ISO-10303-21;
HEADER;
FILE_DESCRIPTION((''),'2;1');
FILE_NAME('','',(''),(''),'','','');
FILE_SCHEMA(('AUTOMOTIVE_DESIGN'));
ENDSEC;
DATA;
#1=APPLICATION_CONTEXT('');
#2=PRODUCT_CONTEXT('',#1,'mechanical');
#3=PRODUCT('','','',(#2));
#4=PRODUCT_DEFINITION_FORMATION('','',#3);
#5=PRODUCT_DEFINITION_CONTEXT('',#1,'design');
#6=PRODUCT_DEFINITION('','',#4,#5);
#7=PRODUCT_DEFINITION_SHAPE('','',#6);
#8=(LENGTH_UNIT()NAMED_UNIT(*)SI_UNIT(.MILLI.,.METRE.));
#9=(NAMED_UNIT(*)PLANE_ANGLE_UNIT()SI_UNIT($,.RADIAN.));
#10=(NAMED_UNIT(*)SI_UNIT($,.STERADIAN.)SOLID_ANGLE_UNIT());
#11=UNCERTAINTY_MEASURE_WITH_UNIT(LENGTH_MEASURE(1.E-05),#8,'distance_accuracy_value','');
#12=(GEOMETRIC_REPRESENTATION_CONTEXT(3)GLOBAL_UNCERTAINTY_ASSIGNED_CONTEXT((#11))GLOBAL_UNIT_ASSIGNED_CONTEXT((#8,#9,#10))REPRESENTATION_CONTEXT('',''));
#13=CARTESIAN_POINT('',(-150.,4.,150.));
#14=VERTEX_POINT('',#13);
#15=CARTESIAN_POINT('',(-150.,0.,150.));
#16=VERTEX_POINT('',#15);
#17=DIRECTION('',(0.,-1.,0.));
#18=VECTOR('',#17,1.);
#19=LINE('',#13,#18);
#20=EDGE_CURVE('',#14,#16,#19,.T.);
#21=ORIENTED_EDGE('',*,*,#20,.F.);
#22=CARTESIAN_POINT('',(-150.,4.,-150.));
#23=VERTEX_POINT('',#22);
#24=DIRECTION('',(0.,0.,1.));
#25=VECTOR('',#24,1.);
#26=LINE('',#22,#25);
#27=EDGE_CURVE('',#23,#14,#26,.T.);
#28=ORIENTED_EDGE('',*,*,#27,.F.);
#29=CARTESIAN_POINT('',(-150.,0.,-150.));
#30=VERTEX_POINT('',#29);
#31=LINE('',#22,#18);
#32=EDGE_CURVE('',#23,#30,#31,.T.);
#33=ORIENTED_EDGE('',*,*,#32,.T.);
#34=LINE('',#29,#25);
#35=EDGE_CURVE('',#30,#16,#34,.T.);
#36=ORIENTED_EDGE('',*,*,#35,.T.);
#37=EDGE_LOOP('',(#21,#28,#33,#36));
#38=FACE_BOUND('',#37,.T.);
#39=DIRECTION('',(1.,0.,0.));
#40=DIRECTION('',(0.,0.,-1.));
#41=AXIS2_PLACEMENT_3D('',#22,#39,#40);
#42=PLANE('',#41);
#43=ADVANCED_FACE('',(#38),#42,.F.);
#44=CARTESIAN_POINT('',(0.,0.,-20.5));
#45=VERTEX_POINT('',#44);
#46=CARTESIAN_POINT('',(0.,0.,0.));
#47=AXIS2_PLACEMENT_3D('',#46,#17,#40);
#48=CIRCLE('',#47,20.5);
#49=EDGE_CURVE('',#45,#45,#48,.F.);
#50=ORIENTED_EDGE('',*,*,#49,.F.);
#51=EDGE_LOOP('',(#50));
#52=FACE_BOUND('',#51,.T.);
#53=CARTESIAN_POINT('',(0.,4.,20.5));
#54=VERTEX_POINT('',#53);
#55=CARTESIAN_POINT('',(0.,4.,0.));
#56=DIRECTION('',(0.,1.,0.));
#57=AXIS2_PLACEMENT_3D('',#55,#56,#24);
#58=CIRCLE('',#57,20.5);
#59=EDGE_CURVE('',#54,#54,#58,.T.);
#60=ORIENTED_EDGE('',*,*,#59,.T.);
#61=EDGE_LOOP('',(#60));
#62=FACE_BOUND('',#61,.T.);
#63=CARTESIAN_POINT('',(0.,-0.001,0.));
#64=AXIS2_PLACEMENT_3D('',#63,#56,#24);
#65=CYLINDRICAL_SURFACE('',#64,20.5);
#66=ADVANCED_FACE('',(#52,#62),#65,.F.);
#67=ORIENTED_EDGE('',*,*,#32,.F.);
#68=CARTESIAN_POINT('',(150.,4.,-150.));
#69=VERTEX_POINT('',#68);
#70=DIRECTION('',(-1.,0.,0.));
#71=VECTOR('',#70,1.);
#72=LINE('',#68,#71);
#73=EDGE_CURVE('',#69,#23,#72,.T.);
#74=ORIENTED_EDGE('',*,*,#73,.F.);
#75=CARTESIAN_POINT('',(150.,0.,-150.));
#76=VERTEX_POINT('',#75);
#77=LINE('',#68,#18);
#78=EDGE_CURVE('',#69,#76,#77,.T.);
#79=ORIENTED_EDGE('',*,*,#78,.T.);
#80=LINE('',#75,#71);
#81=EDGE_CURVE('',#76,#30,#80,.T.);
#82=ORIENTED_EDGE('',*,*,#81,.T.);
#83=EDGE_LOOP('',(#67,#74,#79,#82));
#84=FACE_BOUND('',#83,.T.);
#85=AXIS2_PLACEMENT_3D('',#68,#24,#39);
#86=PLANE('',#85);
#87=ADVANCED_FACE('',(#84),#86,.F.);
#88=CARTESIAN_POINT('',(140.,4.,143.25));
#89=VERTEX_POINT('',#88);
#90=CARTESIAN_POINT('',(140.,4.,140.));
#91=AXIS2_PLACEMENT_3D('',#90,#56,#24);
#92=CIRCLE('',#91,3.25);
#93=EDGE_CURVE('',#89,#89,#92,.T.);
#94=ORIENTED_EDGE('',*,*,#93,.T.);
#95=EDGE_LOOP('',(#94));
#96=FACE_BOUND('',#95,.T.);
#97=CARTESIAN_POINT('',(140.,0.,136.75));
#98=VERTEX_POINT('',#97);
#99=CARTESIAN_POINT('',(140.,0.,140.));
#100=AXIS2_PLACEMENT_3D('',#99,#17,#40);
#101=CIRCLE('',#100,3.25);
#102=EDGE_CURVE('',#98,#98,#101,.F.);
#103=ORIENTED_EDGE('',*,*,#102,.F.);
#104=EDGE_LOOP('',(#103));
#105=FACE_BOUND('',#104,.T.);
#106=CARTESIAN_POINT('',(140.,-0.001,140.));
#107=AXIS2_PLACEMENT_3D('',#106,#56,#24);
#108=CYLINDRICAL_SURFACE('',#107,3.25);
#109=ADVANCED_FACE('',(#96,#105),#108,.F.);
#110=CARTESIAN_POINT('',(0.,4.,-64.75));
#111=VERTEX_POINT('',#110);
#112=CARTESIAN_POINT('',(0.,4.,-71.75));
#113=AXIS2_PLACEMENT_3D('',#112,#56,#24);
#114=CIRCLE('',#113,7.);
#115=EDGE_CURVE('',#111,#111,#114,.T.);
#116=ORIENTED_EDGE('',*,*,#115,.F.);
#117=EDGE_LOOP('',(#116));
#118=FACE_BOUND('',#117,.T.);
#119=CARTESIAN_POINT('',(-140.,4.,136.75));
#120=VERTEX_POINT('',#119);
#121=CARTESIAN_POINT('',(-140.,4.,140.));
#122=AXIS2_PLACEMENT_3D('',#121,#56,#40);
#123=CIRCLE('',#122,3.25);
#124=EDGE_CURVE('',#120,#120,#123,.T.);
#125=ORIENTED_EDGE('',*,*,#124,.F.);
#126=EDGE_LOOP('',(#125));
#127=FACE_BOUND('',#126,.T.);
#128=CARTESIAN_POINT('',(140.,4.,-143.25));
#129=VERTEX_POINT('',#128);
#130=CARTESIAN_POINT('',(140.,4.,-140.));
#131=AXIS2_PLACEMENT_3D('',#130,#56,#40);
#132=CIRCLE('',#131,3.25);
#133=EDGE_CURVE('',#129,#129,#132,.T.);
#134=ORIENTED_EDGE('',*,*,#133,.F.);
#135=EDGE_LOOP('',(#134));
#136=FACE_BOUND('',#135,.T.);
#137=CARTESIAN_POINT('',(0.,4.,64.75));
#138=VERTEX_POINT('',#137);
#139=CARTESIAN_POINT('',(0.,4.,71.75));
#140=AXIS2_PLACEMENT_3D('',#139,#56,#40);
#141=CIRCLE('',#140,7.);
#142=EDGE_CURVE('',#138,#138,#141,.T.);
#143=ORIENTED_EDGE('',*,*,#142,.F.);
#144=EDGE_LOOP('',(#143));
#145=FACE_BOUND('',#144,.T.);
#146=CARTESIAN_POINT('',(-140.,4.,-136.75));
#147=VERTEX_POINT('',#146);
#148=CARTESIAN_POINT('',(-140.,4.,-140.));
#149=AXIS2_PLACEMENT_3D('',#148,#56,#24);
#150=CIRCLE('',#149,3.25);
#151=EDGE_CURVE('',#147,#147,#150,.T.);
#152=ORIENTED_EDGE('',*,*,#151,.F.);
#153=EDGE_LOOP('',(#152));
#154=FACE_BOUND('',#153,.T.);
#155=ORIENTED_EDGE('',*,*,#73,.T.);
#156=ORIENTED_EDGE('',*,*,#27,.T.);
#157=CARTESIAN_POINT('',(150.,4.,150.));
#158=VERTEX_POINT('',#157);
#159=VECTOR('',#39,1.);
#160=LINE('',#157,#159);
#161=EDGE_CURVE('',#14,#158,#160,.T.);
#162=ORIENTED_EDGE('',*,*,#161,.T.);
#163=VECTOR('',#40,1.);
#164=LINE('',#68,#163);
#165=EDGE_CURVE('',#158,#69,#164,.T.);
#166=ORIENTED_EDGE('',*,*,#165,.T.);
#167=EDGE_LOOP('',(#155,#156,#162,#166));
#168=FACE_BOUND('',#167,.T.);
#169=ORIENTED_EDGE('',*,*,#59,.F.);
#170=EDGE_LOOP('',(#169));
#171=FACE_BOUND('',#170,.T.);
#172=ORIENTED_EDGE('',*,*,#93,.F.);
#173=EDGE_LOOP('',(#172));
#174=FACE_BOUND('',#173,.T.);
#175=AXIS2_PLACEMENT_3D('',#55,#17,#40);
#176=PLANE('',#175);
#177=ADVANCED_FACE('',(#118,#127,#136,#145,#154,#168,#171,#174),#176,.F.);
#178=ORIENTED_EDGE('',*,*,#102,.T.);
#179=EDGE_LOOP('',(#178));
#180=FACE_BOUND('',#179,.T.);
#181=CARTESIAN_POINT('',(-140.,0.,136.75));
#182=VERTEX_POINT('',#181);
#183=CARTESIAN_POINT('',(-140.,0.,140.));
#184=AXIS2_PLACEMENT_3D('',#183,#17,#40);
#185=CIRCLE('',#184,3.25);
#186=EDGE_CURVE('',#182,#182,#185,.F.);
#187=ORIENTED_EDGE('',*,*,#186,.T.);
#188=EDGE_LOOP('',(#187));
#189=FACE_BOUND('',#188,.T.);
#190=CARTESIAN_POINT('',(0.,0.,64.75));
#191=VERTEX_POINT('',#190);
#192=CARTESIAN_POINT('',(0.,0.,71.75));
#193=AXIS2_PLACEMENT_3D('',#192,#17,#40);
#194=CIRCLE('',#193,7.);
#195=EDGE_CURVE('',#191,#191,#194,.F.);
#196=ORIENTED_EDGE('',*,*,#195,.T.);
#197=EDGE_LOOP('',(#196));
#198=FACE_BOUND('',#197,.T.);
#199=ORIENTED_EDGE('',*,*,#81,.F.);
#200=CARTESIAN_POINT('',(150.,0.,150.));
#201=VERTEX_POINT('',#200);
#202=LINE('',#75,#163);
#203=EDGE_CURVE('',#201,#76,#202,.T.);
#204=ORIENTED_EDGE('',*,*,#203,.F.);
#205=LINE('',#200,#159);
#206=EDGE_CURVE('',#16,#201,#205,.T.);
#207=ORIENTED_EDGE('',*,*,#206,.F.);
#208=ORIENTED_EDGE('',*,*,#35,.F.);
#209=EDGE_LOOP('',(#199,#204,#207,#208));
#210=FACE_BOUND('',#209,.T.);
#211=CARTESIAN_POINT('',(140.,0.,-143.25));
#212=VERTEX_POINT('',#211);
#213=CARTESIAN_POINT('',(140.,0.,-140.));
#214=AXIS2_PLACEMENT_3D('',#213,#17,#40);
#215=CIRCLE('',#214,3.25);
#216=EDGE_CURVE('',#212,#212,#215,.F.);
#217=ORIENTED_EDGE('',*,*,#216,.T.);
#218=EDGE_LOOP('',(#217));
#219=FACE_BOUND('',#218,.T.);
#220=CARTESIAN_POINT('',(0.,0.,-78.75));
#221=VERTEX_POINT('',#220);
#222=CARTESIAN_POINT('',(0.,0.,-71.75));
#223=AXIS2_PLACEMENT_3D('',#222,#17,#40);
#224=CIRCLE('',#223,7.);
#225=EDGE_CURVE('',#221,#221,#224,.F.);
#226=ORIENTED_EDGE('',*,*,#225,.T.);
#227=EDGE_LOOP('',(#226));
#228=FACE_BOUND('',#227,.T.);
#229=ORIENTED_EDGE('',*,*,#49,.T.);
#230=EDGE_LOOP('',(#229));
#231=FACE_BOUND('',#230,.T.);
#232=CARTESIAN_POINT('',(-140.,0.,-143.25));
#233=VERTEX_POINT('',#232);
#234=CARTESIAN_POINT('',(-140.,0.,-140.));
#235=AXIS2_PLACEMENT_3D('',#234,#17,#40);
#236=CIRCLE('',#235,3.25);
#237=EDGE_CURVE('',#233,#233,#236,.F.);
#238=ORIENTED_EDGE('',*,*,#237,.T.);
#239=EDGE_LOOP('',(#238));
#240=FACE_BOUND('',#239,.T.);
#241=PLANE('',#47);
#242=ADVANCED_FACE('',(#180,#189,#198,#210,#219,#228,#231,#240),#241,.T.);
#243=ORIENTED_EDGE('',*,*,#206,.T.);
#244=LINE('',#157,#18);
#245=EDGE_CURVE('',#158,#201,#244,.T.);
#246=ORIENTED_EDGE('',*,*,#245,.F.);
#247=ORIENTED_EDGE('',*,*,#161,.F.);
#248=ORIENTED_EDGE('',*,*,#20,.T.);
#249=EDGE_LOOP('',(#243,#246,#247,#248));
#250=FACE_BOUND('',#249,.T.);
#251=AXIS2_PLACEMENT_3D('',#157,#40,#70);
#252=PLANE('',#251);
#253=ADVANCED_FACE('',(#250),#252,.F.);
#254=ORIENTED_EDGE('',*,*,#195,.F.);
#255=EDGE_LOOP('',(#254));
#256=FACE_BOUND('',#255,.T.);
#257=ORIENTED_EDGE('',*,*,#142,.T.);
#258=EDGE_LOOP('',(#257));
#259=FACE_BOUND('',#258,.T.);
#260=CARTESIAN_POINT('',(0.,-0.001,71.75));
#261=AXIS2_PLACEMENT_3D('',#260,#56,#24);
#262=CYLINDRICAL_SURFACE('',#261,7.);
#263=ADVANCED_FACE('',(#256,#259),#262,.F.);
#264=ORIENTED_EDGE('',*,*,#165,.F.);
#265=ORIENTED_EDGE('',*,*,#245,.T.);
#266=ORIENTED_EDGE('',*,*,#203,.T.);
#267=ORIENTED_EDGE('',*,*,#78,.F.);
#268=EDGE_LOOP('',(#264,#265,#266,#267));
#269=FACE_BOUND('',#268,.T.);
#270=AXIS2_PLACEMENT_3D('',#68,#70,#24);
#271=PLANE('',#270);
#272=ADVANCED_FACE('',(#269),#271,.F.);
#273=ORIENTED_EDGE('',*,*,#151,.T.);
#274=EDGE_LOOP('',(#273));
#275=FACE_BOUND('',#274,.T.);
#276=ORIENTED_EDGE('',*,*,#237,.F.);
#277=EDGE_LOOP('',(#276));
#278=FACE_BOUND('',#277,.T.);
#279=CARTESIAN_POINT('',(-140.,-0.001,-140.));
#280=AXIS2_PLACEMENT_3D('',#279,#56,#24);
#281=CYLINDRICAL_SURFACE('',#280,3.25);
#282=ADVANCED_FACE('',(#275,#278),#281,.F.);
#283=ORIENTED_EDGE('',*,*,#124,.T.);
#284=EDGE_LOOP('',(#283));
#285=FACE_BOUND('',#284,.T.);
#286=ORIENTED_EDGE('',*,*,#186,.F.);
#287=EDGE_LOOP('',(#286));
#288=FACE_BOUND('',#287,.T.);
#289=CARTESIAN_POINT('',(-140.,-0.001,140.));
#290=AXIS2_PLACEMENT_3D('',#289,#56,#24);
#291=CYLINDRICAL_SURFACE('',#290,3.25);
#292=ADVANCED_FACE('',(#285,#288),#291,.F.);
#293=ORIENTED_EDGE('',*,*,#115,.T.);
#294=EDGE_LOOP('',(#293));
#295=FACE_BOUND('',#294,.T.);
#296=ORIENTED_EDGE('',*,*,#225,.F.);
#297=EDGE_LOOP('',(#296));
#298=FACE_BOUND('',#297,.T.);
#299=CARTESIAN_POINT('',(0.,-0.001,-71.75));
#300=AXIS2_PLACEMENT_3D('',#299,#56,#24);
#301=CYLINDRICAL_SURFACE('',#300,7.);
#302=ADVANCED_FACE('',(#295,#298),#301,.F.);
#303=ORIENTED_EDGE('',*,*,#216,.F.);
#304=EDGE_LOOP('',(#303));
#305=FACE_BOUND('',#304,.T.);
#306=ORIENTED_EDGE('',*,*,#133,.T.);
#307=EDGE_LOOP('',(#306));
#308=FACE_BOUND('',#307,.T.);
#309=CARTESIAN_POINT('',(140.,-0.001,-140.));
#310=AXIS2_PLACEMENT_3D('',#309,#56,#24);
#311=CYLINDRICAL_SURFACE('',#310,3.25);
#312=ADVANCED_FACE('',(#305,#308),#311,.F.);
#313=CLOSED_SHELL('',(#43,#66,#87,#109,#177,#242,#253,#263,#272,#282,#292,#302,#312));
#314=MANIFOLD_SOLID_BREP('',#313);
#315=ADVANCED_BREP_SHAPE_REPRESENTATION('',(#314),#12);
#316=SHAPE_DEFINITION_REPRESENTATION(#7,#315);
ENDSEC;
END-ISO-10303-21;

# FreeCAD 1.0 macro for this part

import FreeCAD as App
import Part
import Sketcher
from FreeCAD import Vector


def add_polygon(sketch, points):
    """Adds a closed chain of lines whose ends are joined by coincident constraints."""
    first, n = sketch.GeometryCount, len(points)
    for a, b in zip(points, points[1:] + points[:1]):
        sketch.addGeometry(Part.LineSegment(App.Vector(*a, 0), App.Vector(*b, 0)), False)
    for i in range(n):
        sketch.addConstraint(Sketcher.Constraint("Coincident", first + i, 2, first + (i + 1) % n, 1))

doc = App.newDocument("Part")
body = doc.addObject("PartDesign::Body", "Body")

sketch1 = body.newObject("Sketcher::SketchObject", "Sketch")
sketch1.AttachmentSupport = (doc.getObject("XZ_Plane"), [""])
sketch1.MapMode = "FlatFace"
add_polygon(sketch1, [(-150, -150), (-150, 150), (150, 150), (150, -150)])
sketch1.addConstraint([
    Sketcher.Constraint("Vertical", 0),
    Sketcher.Constraint("Horizontal", 1),
    Sketcher.Constraint("Vertical", 2),
    Sketcher.Constraint("Horizontal", 3),
    Sketcher.Constraint("Symmetric", 0, 2, 2, 2, -1, 1),
    Sketcher.Constraint("Equal", 3, 0),
    Sketcher.Constraint("DistanceX", 1, 1, 1, 2, 300.0),
])
pad1 = body.newObject("PartDesign::Pad", "Pad")
pad1.Profile = sketch1
pad1.Length = 4
pad1.Reversed = True

sketch2 = body.newObject("Sketcher::SketchObject", "Sketch001")
sketch2.AttachmentSupport = (doc.getObject("XZ_Plane"), [""])
sketch2.MapMode = "FlatFace"
sketch2.AttachmentOffset = App.Placement(Vector(0, 0, -4), App.Rotation())
sketch2.addGeometry(Part.Circle(Vector(-140, -140, 0), Vector(0, 0, 1), 3.2), False)
sketch2.addConstraint([
    Sketcher.Constraint("Diameter", 0, 6.5),
    Sketcher.Constraint("DistanceX", 0, 3, -1, 1, 140.0),
    Sketcher.Constraint("DistanceY", 0, 3, -1, 1, 140.0),
])
pocket1 = body.newObject("PartDesign::Pocket", "Pocket")
pocket1.Profile = sketch2
pocket1.Type = "UpToFirst"
pocket1.Reversed = True

sketch3 = body.newObject("Sketcher::SketchObject", "Sketch002")
sketch3.AttachmentSupport = (doc.getObject("XZ_Plane"), [""])
sketch3.MapMode = "FlatFace"
sketch3.AttachmentOffset = App.Placement(Vector(0, 0, -4), App.Rotation())
sketch3.addGeometry(Part.Circle(Vector(140, -140, 0), Vector(0, 0, 1), 3.2), False)
sketch3.addConstraint([
    Sketcher.Constraint("Diameter", 0, 6.5),
    Sketcher.Constraint("DistanceX", -1, 1, 0, 3, 140.0),
    Sketcher.Constraint("DistanceY", 0, 3, -1, 1, 140.0),
])
pocket2 = body.newObject("PartDesign::Pocket", "Pocket001")
pocket2.Profile = sketch3
pocket2.Type = "UpToFirst"
pocket2.Reversed = True

sketch4 = body.newObject("Sketcher::SketchObject", "Sketch003")
sketch4.AttachmentSupport = (doc.getObject("XZ_Plane"), [""])
sketch4.MapMode = "FlatFace"
sketch4.AttachmentOffset = App.Placement(Vector(0, 0, -4), App.Rotation())
sketch4.addGeometry(Part.Circle(Vector(140, 140, 0), Vector(0, 0, 1), 3.2), False)
sketch4.addConstraint([
    Sketcher.Constraint("Diameter", 0, 6.5),
    Sketcher.Constraint("DistanceX", -1, 1, 0, 3, 140.0),
    Sketcher.Constraint("DistanceY", -1, 1, 0, 3, 140.0),
])
pocket3 = body.newObject("PartDesign::Pocket", "Pocket002")
pocket3.Profile = sketch4
pocket3.Type = "UpToFirst"
pocket3.Reversed = True

sketch5 = body.newObject("Sketcher::SketchObject", "Sketch004")
sketch5.AttachmentSupport = (doc.getObject("XZ_Plane"), [""])
sketch5.MapMode = "FlatFace"
sketch5.AttachmentOffset = App.Placement(Vector(0, 0, -4), App.Rotation())
sketch5.addGeometry(Part.Circle(Vector(-140, 140, 0), Vector(0, 0, 1), 3.2), False)
sketch5.addConstraint([
    Sketcher.Constraint("Diameter", 0, 6.5),
    Sketcher.Constraint("DistanceX", 0, 3, -1, 1, 140.0),
    Sketcher.Constraint("DistanceY", -1, 1, 0, 3, 140.0),
])
pocket4 = body.newObject("PartDesign::Pocket", "Pocket003")
pocket4.Profile = sketch5
pocket4.Type = "UpToFirst"
pocket4.Reversed = True

sketch6 = body.newObject("Sketcher::SketchObject", "Sketch005")
sketch6.AttachmentSupport = (doc.getObject("XZ_Plane"), [""])
sketch6.MapMode = "FlatFace"
sketch6.AttachmentOffset = App.Placement(Vector(0, 0, -4), App.Rotation())
sketch6.addGeometry(Part.Circle(Vector(0, 0, 0), Vector(0, 0, 1), 20), False)
sketch6.addConstraint([
    Sketcher.Constraint("Coincident", 0, 3, -1, 1),
    Sketcher.Constraint("Diameter", 0, 41.0),
])
pocket5 = body.newObject("PartDesign::Pocket", "Pocket004")
pocket5.Profile = sketch6
pocket5.Type = "UpToFirst"
pocket5.Reversed = True

sketch7 = body.newObject("Sketcher::SketchObject", "Sketch006")
sketch7.AttachmentSupport = (doc.getObject("XZ_Plane"), [""])
sketch7.MapMode = "FlatFace"
sketch7.AttachmentOffset = App.Placement(Vector(0, 0, -4), App.Rotation())
sketch7.addGeometry(Part.Circle(Vector(0, -72, 0), Vector(0, 0, 1), 7), False)
sketch7.addConstraint([
    Sketcher.Constraint("PointOnObject", 0, 3, -2),
    Sketcher.Constraint("Diameter", 0, 14.0),
    Sketcher.Constraint("DistanceY", 0, 3, -1, 1, 71.75),
])
pocket6 = body.newObject("PartDesign::Pocket", "Pocket005")
pocket6.Profile = sketch7
pocket6.Type = "UpToFirst"
pocket6.Reversed = True

sketch8 = body.newObject("Sketcher::SketchObject", "Sketch007")
sketch8.AttachmentSupport = (doc.getObject("XZ_Plane"), [""])
sketch8.MapMode = "FlatFace"
sketch8.AttachmentOffset = App.Placement(Vector(0, 0, -4), App.Rotation())
sketch8.addGeometry(Part.Circle(Vector(0, 72, 0), Vector(0, 0, 1), 7), False)
sketch8.addConstraint([
    Sketcher.Constraint("PointOnObject", 0, 3, -2),
    Sketcher.Constraint("Diameter", 0, 14.0),
    Sketcher.Constraint("DistanceY", -1, 1, 0, 3, 71.75),
])
pocket7 = body.newObject("PartDesign::Pocket", "Pocket006")
pocket7.Profile = sketch8
pocket7.Type = "UpToFirst"
pocket7.Reversed = True

doc.recompute()
